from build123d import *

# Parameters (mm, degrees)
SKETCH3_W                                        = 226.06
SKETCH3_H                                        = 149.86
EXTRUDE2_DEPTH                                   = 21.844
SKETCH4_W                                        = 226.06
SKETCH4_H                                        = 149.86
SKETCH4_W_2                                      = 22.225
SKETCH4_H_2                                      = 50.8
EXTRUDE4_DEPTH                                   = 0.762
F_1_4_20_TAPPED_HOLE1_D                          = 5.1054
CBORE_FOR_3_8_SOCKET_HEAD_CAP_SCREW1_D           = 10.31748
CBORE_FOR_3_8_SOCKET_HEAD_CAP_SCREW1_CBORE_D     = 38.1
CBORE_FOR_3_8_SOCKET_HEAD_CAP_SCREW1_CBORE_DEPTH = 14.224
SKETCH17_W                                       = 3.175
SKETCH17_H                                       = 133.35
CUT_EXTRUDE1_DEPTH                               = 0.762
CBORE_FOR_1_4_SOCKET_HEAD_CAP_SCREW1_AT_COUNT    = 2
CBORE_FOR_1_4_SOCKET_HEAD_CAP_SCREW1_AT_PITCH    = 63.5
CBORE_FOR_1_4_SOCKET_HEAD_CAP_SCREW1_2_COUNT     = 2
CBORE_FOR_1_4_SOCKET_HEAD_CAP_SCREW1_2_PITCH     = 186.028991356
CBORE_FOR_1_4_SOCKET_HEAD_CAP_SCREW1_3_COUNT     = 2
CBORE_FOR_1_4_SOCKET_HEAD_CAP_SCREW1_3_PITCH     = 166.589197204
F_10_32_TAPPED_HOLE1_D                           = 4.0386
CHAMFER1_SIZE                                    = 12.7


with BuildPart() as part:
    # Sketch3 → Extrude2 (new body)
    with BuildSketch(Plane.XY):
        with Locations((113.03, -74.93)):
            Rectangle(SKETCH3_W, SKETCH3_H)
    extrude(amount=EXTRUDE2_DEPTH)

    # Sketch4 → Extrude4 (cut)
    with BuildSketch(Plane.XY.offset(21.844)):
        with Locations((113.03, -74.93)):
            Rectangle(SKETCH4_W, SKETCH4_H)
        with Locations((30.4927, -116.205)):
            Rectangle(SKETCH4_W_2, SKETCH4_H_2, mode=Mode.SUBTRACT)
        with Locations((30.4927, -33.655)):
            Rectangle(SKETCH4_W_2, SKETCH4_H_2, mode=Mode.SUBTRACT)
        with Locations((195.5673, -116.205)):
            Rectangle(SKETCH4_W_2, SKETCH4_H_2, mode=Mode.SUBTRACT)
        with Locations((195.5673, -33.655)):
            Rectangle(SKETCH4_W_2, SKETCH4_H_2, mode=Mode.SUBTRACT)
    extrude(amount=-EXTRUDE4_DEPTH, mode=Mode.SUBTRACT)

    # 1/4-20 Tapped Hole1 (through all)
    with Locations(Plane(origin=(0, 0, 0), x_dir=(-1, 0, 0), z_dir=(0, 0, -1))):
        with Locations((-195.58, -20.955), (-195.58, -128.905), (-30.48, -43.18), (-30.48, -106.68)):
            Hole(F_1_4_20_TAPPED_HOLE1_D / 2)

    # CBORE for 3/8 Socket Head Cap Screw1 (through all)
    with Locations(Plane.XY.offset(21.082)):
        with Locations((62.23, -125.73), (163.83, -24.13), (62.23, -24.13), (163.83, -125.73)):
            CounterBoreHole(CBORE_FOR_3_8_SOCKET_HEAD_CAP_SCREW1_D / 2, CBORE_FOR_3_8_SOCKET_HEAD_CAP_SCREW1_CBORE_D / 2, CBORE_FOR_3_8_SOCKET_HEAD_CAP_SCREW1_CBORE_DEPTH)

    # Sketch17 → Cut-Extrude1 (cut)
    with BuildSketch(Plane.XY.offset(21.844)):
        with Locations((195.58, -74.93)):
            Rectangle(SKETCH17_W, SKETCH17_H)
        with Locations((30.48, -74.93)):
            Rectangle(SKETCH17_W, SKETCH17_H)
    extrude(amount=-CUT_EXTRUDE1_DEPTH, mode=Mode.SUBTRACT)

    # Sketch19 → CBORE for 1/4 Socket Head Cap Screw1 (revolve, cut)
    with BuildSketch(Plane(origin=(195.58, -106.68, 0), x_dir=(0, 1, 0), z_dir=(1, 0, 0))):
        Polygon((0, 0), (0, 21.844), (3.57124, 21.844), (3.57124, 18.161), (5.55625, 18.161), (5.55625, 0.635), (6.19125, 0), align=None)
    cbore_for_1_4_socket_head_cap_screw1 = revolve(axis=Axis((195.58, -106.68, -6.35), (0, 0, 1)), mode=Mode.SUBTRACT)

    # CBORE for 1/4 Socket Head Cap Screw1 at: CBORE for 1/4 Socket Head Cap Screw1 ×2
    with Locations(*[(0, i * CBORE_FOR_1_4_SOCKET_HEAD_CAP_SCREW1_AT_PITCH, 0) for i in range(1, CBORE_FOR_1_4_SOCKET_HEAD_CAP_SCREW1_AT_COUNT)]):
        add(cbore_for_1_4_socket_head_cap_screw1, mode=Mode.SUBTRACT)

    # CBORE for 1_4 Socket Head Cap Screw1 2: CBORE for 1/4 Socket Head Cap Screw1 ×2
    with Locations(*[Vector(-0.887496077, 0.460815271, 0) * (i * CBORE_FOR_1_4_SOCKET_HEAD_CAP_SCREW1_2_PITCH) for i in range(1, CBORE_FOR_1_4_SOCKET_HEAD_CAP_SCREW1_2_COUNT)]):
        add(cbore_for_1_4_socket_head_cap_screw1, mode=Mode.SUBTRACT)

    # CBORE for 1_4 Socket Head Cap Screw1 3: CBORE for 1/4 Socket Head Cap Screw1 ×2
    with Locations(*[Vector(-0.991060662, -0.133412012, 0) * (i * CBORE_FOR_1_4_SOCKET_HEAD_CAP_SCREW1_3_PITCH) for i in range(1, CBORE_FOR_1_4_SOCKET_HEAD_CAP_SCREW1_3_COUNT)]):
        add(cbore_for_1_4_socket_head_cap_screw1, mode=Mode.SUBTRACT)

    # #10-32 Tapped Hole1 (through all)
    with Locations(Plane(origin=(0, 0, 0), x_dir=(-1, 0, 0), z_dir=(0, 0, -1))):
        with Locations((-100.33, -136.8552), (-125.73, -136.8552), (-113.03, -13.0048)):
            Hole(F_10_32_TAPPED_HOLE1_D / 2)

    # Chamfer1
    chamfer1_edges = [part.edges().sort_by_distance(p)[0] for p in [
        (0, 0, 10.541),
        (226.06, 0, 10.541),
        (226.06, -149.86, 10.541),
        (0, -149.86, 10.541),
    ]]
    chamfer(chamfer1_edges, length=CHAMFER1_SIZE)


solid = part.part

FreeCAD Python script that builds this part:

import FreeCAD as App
import Part
import Sketcher
Q = App.Units.Quantity


def edges_at(feature, points):
    """Names of the edges that pass closest to the given points."""
    edges = feature.Shape.Edges
    near = lambda p: min(range(len(edges)), key=lambda i: edges[i].distToShape(Part.Vertex(*p))[0])
    return sorted({f"Edge{near(p) + 1}" for p in points})


def add_polygon(sketch, points):
    """Adds a closed chain of lines whose ends are joined by coincident constraints."""
    first, n = sketch.GeometryCount, len(points)
    for a, b in zip(points, points[1:] + points[:1]):
        sketch.addGeometry(Part.LineSegment(App.Vector(*a, 0), App.Vector(*b, 0)), False)
    for i in range(n):
        sketch.addConstraint(Sketcher.Constraint("Coincident", first + i, 2, first + (i + 1) % n, 1))

doc = App.newDocument("Part")
body = doc.addObject("PartDesign::Body", "Body")

sketch1 = body.newObject("Sketcher::SketchObject", "Sketch")
sketch1.AttachmentSupport = (doc.getObject("XY_Plane"), [""])
sketch1.MapMode = "FlatFace"
add_polygon(sketch1, [(0, 0), (0, -149.86), (226.06, -149.86), (226.06, 0)])
sketch1.addConstraint([
    Sketcher.Constraint("Vertical", 0),
    Sketcher.Constraint("Horizontal", 1),
    Sketcher.Constraint("Vertical", 2),
    Sketcher.Constraint("Horizontal", 3),
    Sketcher.Constraint("Coincident", 3, 2, -1, 1),
    Sketcher.Constraint("DistanceX", 1, 1, 1, 2, Q("8.9 in")),
    Sketcher.Constraint("DistanceY", 0, 2, 0, 1, Q("5.9 in")),
])
pad1 = body.newObject("PartDesign::Pad", "Pad")
pad1.Profile = sketch1
pad1.Length = Q("0.86 in")

sketch2 = body.newObject("Sketcher::SketchObject", "Sketch001")
sketch2.AttachmentSupport = (doc.getObject("XY_Plane"), [""])
sketch2.MapMode = "FlatFace"
sketch2.AttachmentOffset = App.Placement(App.Vector(0, 0, 0.86 * 25.4), App.Rotation())
add_polygon(sketch2, [(0, 0), (0, -149.86), (226.06, -149.86), (226.06, 0)])
add_polygon(sketch2, [(41.6052, -141.605), (19.3802, -141.605), (19.3802, -90.805), (41.6052, -90.805)])
add_polygon(sketch2, [(206.6798, -141.605), (184.4548, -141.605), (184.4548, -90.805), (206.6798, -90.805)])
add_polygon(sketch2, [(41.6052, -59.055), (19.3802, -59.055), (19.3802, -8.255), (41.6052, -8.255)])
add_polygon(sketch2, [(206.6798, -59.055), (184.4548, -59.055), (184.4548, -8.255), (206.6798, -8.255)])
sketch2.addConstraint([
    Sketcher.Constraint("Vertical", 0),
    Sketcher.Constraint("Horizontal", 1),
    Sketcher.Constraint("Vertical", 2),
    Sketcher.Constraint("Horizontal", 3),
    Sketcher.Constraint("Horizontal", 4),
    Sketcher.Constraint("Vertical", 5),
    Sketcher.Constraint("Horizontal", 6),
    Sketcher.Constraint("Vertical", 7),
    Sketcher.Constraint("Horizontal", 8),
    Sketcher.Constraint("Vertical", 9),
    Sketcher.Constraint("Horizontal", 10),
    Sketcher.Constraint("Vertical", 11),
    Sketcher.Constraint("Horizontal", 12),
    Sketcher.Constraint("Vertical", 13),
    Sketcher.Constraint("Horizontal", 14),
    Sketcher.Constraint("Vertical", 15),
    Sketcher.Constraint("Horizontal", 16),
    Sketcher.Constraint("Vertical", 17),
    Sketcher.Constraint("Horizontal", 18),
    Sketcher.Constraint("Vertical", 19),
    Sketcher.Constraint("Coincident", 3, 2, -1, 1),
    Sketcher.Constraint("Horizontal", 7, 2, 8, 2),
    Sketcher.Constraint("Horizontal", 6, 2, 9, 2),
    Sketcher.Constraint("Horizontal", 15, 2, 16, 2),
    Sketcher.Constraint("Horizontal", 14, 2, 17, 2),
    Sketcher.Constraint("Vertical", 5, 2, 12, 2),
    Sketcher.Constraint("Vertical", 7, 2, 14, 2),
    Sketcher.Constraint("Vertical", 9, 2, 16, 2),
    Sketcher.Constraint("Vertical", 11, 2, 18, 2),
    Sketcher.Constraint("Equal", 6, 8),
    Sketcher.Constraint("Equal", 11, 13),
    Sketcher.Constraint("DistanceY", 5, 1, 5, 2, Q("2 in")),
    Sketcher.Constraint("DistanceX", 1, 1, 1, 2, Q("8.9 in")),
    Sketcher.Constraint("DistanceY", 0, 2, 0, 1, Q("5.9 in")),
    Sketcher.Constraint("DistanceX", 4, 2, 4, 1, Q("0.875 in")),
    Sketcher.Constraint("DistanceY", 5, 2, 12, 2, Q("1.25 in")),
    Sketcher.Constraint("DistanceX", -1, 1, 4, 2, Q("0.763 in")),
    Sketcher.Constraint("DistanceY", 4, 2, -1, 1, Q("5.575 in")),
    Sketcher.Constraint("DistanceX", -1, 1, 8, 2, Q("7.262 in")),
])
pocket1 = body.newObject("PartDesign::Pocket", "Pocket")
pocket1.Profile = sketch2
pocket1.Length = Q("0.03 in")

sketch3 = body.newObject("Sketcher::SketchObject", "Sketch002")
sketch3.AttachmentSupport = (doc.getObject("XY_Plane"), [""])
sketch3.MapMode = "FlatFace"
sketch3.addGeometry([
    Part.Circle(App.Vector(195.58, -20.955, 0), App.Vector(0, 0, 1), 2.5527),
    Part.Circle(App.Vector(195.58, -128.905, 0), App.Vector(0, 0, 1), 2.5527),
    Part.Circle(App.Vector(30.48, -43.18, 0), App.Vector(0, 0, 1), 2.5527),
    Part.Circle(App.Vector(30.48, -106.68, 0), App.Vector(0, 0, 1), 2.5527),
], False)
sketch3.addConstraint([
    Sketcher.Constraint("Equal", 0, 1),
    Sketcher.Constraint("Equal", 1, 2),
    Sketcher.Constraint("Equal", 2, 3),
    Sketcher.Constraint("Vertical", 0, 3, 1, 3),
    Sketcher.Constraint("Vertical", 2, 3, 3, 3),
    Sketcher.Constraint("Diameter", 0, Q("0.201 in")),
    Sketcher.Constraint("DistanceX", -1, 1, 0, 3, Q("7.7 in")),
    Sketcher.Constraint("DistanceX", -1, 1, 2, 3, Q("1.2 in")),
    Sketcher.Constraint("DistanceY", 2, 3, -1, 1, Q("1.7 in")),
    Sketcher.Constraint("DistanceY", 3, 3, -1, 1, Q("4.2 in")),
    Sketcher.Constraint("DistanceY", 1, 3, 0, 3, Q("4.25 in")),
    Sketcher.Constraint("DistanceY", 0, 3, -1, 1, Q("0.825 in")),
])
doc.recompute()
hole = body.newObject("PartDesign::Hole", "Hole")
hole.Profile = sketch3
hole.ThreadType = "None"
hole.Diameter = Q("0.201 in")
hole.DepthType = "ThroughAll"
hole.Reversed = True

sketch4 = body.newObject("Sketcher::SketchObject", "Sketch003")
sketch4.AttachmentSupport = (doc.getObject("XY_Plane"), [""])
sketch4.MapMode = "FlatFace"
sketch4.AttachmentOffset = App.Placement(App.Vector(0, 0, 0.83 * 25.4), App.Rotation())
sketch4.addGeometry([
    Part.Circle(App.Vector(62.23, -125.73, 0), App.Vector(0, 0, 1), 5.15874),
    Part.Circle(App.Vector(163.83, -24.13, 0), App.Vector(0, 0, 1), 5.15874),
    Part.Circle(App.Vector(62.23, -24.13, 0), App.Vector(0, 0, 1), 5.15874),
    Part.Circle(App.Vector(163.83, -125.73, 0), App.Vector(0, 0, 1), 5.15874),
], False)
sketch4.addConstraint([
    Sketcher.Constraint("Equal", 0, 1),
    Sketcher.Constraint("Equal", 1, 2),
    Sketcher.Constraint("Equal", 2, 3),
    Sketcher.Constraint("Horizontal", 1, 3, 2, 3),
    Sketcher.Constraint("Horizontal", 0, 3, 3, 3),
    Sketcher.Constraint("Vertical", 0, 3, 2, 3),
    Sketcher.Constraint("Vertical", 1, 3, 3, 3),
    Sketcher.Constraint("DistanceX", 0, 3, 1, 3, Q("4 in")),
    Sketcher.Constraint("DistanceY", 0, 3, 1, 3, Q("4 in")),
    Sketcher.Constraint("Diameter", 0, Q("0.4062 in")),
    Sketcher.Constraint("DistanceX", -1, 1, 0, 3, Q("2.45 in")),
    Sketcher.Constraint("DistanceY", 0, 3, -1, 1, Q("4.95 in")),
])
doc.recompute()
hole2 = body.newObject("PartDesign::Hole", "Hole001")
hole2.Profile = sketch4
hole2.ThreadType = "None"
hole2.Diameter = Q("0.4062 in")
hole2.DepthType = "ThroughAll"
hole2.HoleCutType = "Counterbore"
hole2.HoleCutDiameter = Q("1.5 in")
hole2.HoleCutDepth = Q("0.56 in")

sketch5 = body.newObject("Sketcher::SketchObject", "Sketch004")
sketch5.AttachmentSupport = (doc.getObject("XY_Plane"), [""])
sketch5.MapMode = "FlatFace"
sketch5.AttachmentOffset = App.Placement(App.Vector(0, 0, 0.86 * 25.4), App.Rotation())
add_polygon(sketch5, [(193.9925, -8.255), (193.9925, -141.605), (197.1675, -141.605), (197.1675, -8.255)])
add_polygon(sketch5, [(28.8925, -8.255), (28.8925, -141.605), (32.0675, -141.605), (32.0675, -8.255)])
sketch5.addConstraint([
    Sketcher.Constraint("Vertical", 0),
    Sketcher.Constraint("Horizontal", 1),
    Sketcher.Constraint("Vertical", 2),
    Sketcher.Constraint("Horizontal", 3),
    Sketcher.Constraint("Vertical", 4),
    Sketcher.Constraint("Horizontal", 5),
    Sketcher.Constraint("Vertical", 6),
    Sketcher.Constraint("Horizontal", 7),
    Sketcher.Constraint("Horizontal", 1, 2, 4, 2),
    Sketcher.Constraint("Horizontal", 3, 2, 6, 2),
    Sketcher.Constraint("Equal", 3, 5),
    Sketcher.Constraint("DistanceY", 0, 2, 0, 1, Q("5.25 in")),
    Sketcher.Constraint("DistanceX", 4, 2, 0, 2, Q("6.5 in")),
    Sketcher.Constraint("DistanceX", 1, 1, 1, 2, Q("0.125 in")),
    Sketcher.Constraint("DistanceY", 0, 2, -1, 1, Q("5.575 in")),
    Sketcher.Constraint("DistanceX", -1, 1, 0, 2, Q("7.6375 in")),
])
pocket2 = body.newObject("PartDesign::Pocket", "Pocket001")
pocket2.Profile = sketch5
pocket2.Length = Q("0.03 in")

sketch6 = body.newObject("Sketcher::SketchObject", "Sketch005")
sketch6.AttachmentSupport = (doc.getObject("YZ_Plane"), [""])
sketch6.MapMode = "FlatFace"
sketch6.AttachmentOffset = App.Placement(App.Vector(0, 0, 7.7 * 25.4), App.Rotation())
add_polygon(sketch6, [(-106.68, 21.844), (-106.68, 0), (-100.48875, 0), (-101.12375, 0.635), (-101.12375, 18.161), (-103.10876, 18.161), (-103.10876, 21.844)])
sketch6.addGeometry(Part.LineSegment(App.Vector(-106.68, 0, 0), App.Vector(-106.68, 21.844, 0)), True)
sketch6.addConstraint([
    Sketcher.Constraint("Vertical", 0),
    Sketcher.Constraint("Horizontal", 1),
    Sketcher.Constraint("Vertical", 3),
    Sketcher.Constraint("Horizontal", 4),
    Sketcher.Constraint("Vertical", 5),
    Sketcher.Constraint("Horizontal", 6),
    Sketcher.Constraint("Vertical", 7),
    Sketcher.Constraint("Coincident", 7, 1, 0, 2),
    Sketcher.Constraint("PointOnObject", 0, 2, -1),
    Sketcher.Constraint("Horizontal", 5, 2, 7, 2),
    Sketcher.Constraint("Angle", 2, Q("135 deg")),
    Sketcher.Constraint("DistanceY", 0, 2, 0, 1, Q("0.86 in")),
    Sketcher.Constraint("DistanceY", 3, 1, 3, 2, Q("0.69 in")),
    Sketcher.Constraint("DistanceX", 0, 2, -1, 1, Q("4.2 in")),
    Sketcher.Constraint("DistanceY", 5, 1, 5, 2, Q("0.145 in")),
    Sketcher.Constraint("DistanceX", 6, 2, 6, 1, Q("0.1406 in")),
    Sketcher.Constraint("DistanceX", 0, 2, 2, 2, Q("0.21875 in")),
])
groove = body.newObject("PartDesign::Groove", "Groove")
groove.Profile = sketch6
groove.ReferenceAxis = (sketch6, ["Axis0"])
groove.Angle = 360
doc.recompute()

linearpattern = body.newObject("PartDesign::LinearPattern", "LinearPattern")
linearpattern.Originals = [groove]
linearpattern.Direction = (doc.getObject("Y_Axis"), [""])
linearpattern.Mode = "offset"
linearpattern.Offset = Q("2.5 in")
linearpattern.Occurrences = 2
body.Tip = linearpattern
doc.recompute()

datumline = body.newObject("PartDesign::Line", "DatumLine")
datumline.Placement = App.Placement(App.Vector(0, 0, 0), App.Rotation(App.Vector(0, 0, 1), App.Vector(-0.887496077, 0.460815271, 0)))
linearpattern2 = body.newObject("PartDesign::LinearPattern", "LinearPattern001")
linearpattern2.Originals = [groove]
linearpattern2.Direction = (datumline, [""])
linearpattern2.Mode = "offset"
linearpattern2.Offset = 186.028991
linearpattern2.Occurrences = 2
body.Tip = linearpattern2
doc.recompute()

datumline2 = body.newObject("PartDesign::Line", "DatumLine001")
datumline2.Placement = App.Placement(App.Vector(0, 0, 0), App.Rotation(App.Vector(0, 0, 1), App.Vector(-0.991060662, -0.133412012, 0)))
linearpattern3 = body.newObject("PartDesign::LinearPattern", "LinearPattern002")
linearpattern3.Originals = [groove]
linearpattern3.Direction = (datumline2, [""])
linearpattern3.Mode = "offset"
linearpattern3.Offset = 166.589197
linearpattern3.Occurrences = 2
body.Tip = linearpattern3

sketch7 = body.newObject("Sketcher::SketchObject", "Sketch006")
sketch7.AttachmentSupport = (doc.getObject("XY_Plane"), [""])
sketch7.MapMode = "FlatFace"
sketch7.addGeometry([
    Part.Circle(App.Vector(100.33, -136.8552, 0), App.Vector(0, 0, 1), 2.0193),
    Part.Circle(App.Vector(125.73, -136.8552, 0), App.Vector(0, 0, 1), 2.0193),
    Part.Circle(App.Vector(113.03, -13.0048, 0), App.Vector(0, 0, 1), 2.0193),
], False)
sketch7.addConstraint([
    Sketcher.Constraint("Equal", 0, 1),
    Sketcher.Constraint("Equal", 1, 2),
    Sketcher.Constraint("Horizontal", 0, 3, 1, 3),
    Sketcher.Constraint("Diameter", 0, Q("0.159 in")),
    Sketcher.Constraint("DistanceX", 0, 3, 1, 3, Q("1 in")),
    Sketcher.Constraint("DistanceX", 0, 3, 2, 3, Q("0.5 in")),
    Sketcher.Constraint("DistanceX", -1, 1, 0, 3, Q("3.95 in")),
    Sketcher.Constraint("DistanceY", 0, 3, -1, 1, Q("5.388 in")),
    Sketcher.Constraint("DistanceY", 2, 3, -1, 1, Q("0.512 in")),
])
doc.recompute()
hole3 = body.newObject("PartDesign::Hole", "Hole002")
hole3.Profile = sketch7
hole3.ThreadType = "None"
hole3.Diameter = Q("0.159 in")
hole3.DepthType = "ThroughAll"
hole3.Reversed = True
doc.recompute()

chamfer = body.newObject("PartDesign::Chamfer", "Chamfer")
chamfer.Base = (hole3, edges_at(hole3, [
    (0, 0, 10.541),
    (226.06, 0, 10.541),
    (226.06, -149.86, 10.541),
    (0, -149.86, 10.541),
]))
chamfer.Size = Q("0.5 in")

doc.recompute()
